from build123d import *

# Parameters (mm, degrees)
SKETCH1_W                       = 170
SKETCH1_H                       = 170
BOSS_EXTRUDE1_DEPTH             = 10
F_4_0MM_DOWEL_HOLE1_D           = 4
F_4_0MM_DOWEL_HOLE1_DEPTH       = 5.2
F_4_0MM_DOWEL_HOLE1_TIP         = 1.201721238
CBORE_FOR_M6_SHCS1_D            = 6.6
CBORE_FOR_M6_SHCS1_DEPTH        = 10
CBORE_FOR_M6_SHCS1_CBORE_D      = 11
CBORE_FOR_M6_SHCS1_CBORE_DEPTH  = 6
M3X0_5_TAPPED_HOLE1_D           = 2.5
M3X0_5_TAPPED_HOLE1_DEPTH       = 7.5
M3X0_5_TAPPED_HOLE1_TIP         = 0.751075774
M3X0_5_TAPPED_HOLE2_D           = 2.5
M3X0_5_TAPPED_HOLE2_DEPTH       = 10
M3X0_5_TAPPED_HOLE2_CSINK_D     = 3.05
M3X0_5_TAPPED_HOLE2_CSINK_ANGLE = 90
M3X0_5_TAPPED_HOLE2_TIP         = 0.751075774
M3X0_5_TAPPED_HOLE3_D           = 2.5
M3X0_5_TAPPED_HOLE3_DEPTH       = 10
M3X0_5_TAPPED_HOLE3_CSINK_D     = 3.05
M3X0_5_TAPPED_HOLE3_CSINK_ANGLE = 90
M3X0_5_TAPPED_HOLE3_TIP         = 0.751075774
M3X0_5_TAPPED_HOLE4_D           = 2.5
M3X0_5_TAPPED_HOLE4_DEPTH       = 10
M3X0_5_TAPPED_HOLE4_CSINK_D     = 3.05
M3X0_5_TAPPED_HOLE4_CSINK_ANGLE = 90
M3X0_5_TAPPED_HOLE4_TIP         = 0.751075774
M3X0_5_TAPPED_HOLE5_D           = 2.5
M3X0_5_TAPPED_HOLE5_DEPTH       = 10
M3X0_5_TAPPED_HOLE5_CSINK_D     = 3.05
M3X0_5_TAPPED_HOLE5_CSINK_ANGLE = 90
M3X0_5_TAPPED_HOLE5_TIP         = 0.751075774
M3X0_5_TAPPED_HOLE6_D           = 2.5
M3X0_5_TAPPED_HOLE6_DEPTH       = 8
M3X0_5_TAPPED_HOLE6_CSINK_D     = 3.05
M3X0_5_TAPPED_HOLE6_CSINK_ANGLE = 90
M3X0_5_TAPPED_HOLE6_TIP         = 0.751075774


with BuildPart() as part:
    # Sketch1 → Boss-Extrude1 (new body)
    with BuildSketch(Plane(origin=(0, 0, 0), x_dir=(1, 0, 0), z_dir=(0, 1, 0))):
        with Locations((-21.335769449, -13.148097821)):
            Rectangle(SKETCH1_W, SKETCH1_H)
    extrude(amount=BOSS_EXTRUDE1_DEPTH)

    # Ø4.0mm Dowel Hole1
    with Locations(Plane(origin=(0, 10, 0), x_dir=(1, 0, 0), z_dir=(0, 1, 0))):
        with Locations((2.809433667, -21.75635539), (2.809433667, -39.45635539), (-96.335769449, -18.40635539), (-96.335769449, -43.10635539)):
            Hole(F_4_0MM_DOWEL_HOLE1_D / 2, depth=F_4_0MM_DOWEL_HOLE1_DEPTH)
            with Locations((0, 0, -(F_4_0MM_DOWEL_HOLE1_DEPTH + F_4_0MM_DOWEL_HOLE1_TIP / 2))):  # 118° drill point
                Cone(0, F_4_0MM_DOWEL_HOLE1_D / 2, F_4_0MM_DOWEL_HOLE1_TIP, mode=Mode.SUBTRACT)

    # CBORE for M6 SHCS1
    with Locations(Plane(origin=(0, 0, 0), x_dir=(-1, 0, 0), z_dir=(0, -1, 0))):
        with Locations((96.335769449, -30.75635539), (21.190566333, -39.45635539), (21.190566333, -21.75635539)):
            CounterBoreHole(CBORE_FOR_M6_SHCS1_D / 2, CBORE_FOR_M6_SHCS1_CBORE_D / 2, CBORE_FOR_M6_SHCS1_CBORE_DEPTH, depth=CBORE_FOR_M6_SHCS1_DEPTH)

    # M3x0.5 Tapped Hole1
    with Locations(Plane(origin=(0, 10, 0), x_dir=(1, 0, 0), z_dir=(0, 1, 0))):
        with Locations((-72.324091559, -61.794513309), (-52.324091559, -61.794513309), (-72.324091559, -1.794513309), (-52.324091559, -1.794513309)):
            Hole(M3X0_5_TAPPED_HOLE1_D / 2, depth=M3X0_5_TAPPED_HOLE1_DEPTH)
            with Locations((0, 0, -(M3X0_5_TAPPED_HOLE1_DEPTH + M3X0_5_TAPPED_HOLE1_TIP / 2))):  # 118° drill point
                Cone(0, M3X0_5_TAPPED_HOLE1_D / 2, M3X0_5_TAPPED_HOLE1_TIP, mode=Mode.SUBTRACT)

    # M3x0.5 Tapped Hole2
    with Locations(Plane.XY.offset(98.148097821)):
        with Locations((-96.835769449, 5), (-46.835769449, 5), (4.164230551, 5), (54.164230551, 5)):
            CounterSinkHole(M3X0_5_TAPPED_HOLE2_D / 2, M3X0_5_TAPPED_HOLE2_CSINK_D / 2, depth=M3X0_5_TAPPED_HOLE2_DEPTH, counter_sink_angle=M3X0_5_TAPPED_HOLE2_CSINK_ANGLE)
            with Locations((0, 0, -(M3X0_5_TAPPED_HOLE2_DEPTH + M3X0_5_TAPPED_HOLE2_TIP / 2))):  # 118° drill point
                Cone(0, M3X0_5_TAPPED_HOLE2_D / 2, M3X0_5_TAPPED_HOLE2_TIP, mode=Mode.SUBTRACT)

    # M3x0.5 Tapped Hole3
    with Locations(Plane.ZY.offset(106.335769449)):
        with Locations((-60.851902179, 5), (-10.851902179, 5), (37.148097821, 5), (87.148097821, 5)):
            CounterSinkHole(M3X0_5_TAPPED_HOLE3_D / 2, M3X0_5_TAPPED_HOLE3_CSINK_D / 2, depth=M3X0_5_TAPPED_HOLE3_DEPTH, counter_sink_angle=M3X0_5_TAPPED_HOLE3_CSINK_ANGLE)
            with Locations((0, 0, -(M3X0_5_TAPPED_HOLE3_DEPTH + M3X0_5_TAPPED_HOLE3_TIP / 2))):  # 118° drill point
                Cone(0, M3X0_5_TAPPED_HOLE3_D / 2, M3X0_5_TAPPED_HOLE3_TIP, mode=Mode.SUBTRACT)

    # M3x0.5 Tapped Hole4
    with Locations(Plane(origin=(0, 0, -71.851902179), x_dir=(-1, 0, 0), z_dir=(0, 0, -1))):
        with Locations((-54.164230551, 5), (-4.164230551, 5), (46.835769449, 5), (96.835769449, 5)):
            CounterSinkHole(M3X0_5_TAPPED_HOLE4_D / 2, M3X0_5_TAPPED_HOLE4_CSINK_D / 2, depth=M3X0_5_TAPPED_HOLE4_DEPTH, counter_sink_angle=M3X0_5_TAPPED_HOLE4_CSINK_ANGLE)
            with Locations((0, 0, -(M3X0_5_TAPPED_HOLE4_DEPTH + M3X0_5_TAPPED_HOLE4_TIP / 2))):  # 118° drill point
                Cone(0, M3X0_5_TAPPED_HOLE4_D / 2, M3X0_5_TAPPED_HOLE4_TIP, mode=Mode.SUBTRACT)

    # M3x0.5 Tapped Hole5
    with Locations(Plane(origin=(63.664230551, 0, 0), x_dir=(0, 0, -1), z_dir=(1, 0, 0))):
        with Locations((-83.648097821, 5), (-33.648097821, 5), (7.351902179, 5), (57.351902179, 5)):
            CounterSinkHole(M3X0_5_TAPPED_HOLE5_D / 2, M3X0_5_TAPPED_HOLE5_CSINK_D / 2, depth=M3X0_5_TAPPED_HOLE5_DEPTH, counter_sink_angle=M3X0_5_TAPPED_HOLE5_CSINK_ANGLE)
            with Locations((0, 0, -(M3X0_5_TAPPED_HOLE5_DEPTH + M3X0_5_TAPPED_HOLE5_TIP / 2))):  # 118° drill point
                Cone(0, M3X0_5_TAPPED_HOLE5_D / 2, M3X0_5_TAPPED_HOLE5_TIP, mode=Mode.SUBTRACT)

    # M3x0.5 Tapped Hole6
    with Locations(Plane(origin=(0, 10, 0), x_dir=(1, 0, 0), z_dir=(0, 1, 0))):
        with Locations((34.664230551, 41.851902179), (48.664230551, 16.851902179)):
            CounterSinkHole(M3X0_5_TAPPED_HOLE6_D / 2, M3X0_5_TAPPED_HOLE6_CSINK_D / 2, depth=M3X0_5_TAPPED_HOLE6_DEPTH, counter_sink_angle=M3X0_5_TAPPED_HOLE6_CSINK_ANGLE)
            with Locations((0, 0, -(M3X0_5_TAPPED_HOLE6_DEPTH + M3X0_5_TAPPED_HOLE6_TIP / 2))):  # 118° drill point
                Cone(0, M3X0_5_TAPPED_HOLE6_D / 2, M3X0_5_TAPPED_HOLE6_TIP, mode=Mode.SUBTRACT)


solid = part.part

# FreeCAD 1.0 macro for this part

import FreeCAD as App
import Part
import Sketcher

V = App.Vector


def add_polygon(sketch, points):
    """Adds a closed chain of lines whose ends are joined by coincident constraints."""
    first, n = sketch.GeometryCount, len(points)
    for a, b in zip(points, points[1:] + points[:1]):
        sketch.addGeometry(Part.LineSegment(App.Vector(*a, 0), App.Vector(*b, 0)), False)
    for i in range(n):
        sketch.addConstraint(Sketcher.Constraint("Coincident", first + i, 2, first + (i + 1) % n, 1))

doc = App.newDocument("Part")
body = doc.addObject("PartDesign::Body", "Body")

# Sketch on XZ plane
sketch1 = body.newObject("Sketcher::SketchObject", "Sketch")
sketch1.AttachmentSupport = (doc.getObject("XZ_Plane"), [""])
sketch1.MapMode = "FlatFace"
add_polygon(sketch1, [(-106, -72), (-106, 98), (64, 98), (64, -72)])  # lines 0-3
sketch1.addConstraint(Sketcher.Constraint("Vertical", 0))
sketch1.addConstraint(Sketcher.Constraint("Horizontal", 1))
sketch1.addConstraint(Sketcher.Constraint("Vertical", 2))
sketch1.addConstraint(Sketcher.Constraint("Horizontal", 3))
sketch1.addConstraint(Sketcher.Constraint("Equal", 3, 0))
sketch1.addConstraint(Sketcher.Constraint("DistanceX", 1, 1, 1, 2, 170.0))
sketch1.addConstraint(Sketcher.Constraint("DistanceX", 0, 2, -1, 1, 106.335769))
sketch1.addConstraint(Sketcher.Constraint("DistanceY", -1, 1, 0, 2, 98.148098))
pad1 = body.newObject("PartDesign::Pad", "Pad")
pad1.Profile = sketch1
pad1.Length = 10
pad1.Reversed = True

# Sketch on XZ plane
sketch2 = body.newObject("Sketcher::SketchObject", "Sketch001")
sketch2.AttachmentSupport = (doc.getObject("XZ_Plane"), [""])
sketch2.MapMode = "FlatFace"
sketch2.AttachmentOffset = App.Placement(V(0, 0, -10), App.Rotation())
sketch2.addGeometry(Part.Circle(V(2.8, 21.8, 0), V(0, 0, 1), 2), False)
sketch2.addGeometry(Part.Circle(V(2.8, 39.5, 0), V(0, 0, 1), 2), False)
sketch2.addGeometry(Part.Circle(V(-96.3, 18.4, 0), V(0, 0, 1), 2), False)
sketch2.addGeometry(Part.Circle(V(-96.3, 43.1, 0), V(0, 0, 1), 2), False)
sketch2.addConstraint(Sketcher.Constraint("Equal", 0, 1))
sketch2.addConstraint(Sketcher.Constraint("Equal", 1, 2))
sketch2.addConstraint(Sketcher.Constraint("Equal", 2, 3))
sketch2.addConstraint(Sketcher.Constraint("Vertical", 0, 3, 1, 3))
sketch2.addConstraint(Sketcher.Constraint("Vertical", 2, 3, 3, 3))
sketch2.addConstraint(Sketcher.Constraint("Diameter", 0, 4.0))
sketch2.addConstraint(Sketcher.Constraint("DistanceY", 0, 3, 1, 3, 17.7))
sketch2.addConstraint(Sketcher.Constraint("DistanceY", 2, 3, 3, 3, 24.7))
sketch2.addConstraint(Sketcher.Constraint("DistanceY", 2, 3, 0, 3, 3.35))
sketch2.addConstraint(Sketcher.Constraint("DistanceX", 2, 3, -1, 1, 96.335769))
sketch2.addConstraint(Sketcher.Constraint("DistanceX", -1, 1, 0, 3, 2.809434))
sketch2.addConstraint(Sketcher.Constraint("DistanceY", -1, 1, 0, 3, 21.756355))
doc.recompute()
hole = body.newObject("PartDesign::Hole", "Hole")
hole.Profile = sketch2
hole.ThreadType = "None"
hole.Diameter = 4
hole.DepthType = "Dimension"
hole.Depth = 5.2
hole.DrillPoint = "Angled"
hole.DrillPointAngle = 118
hole.Reversed = True

# Sketch on XZ plane
sketch3 = body.newObject("Sketcher::SketchObject", "Sketch002")
sketch3.AttachmentSupport = (doc.getObject("XZ_Plane"), [""])
sketch3.MapMode = "FlatFace"
sketch3.addGeometry(Part.Circle(V(-96.3, 30.8, 0), V(0, 0, 1), 3.3), False)
sketch3.addGeometry(Part.Circle(V(-21.2, 39.5, 0), V(0, 0, 1), 3.3), False)
sketch3.addGeometry(Part.Circle(V(-21.2, 21.8, 0), V(0, 0, 1), 3.3), False)
sketch3.addConstraint(Sketcher.Constraint("Equal", 0, 1))
sketch3.addConstraint(Sketcher.Constraint("Equal", 1, 2))
sketch3.addConstraint(Sketcher.Constraint("Vertical", 1, 3, 2, 3))
sketch3.addConstraint(Sketcher.Constraint("Diameter", 0, 6.6))
sketch3.addConstraint(Sketcher.Constraint("DistanceY", 2, 3, 0, 3, 9.0))
sketch3.addConstraint(Sketcher.Constraint("DistanceY", 0, 3, 1, 3, 8.7))
sketch3.addConstraint(Sketcher.Constraint("DistanceX", 0, 3, -1, 1, 96.335769))
sketch3.addConstraint(Sketcher.Constraint("DistanceY", -1, 1, 0, 3, 30.756355))
sketch3.addConstraint(Sketcher.Constraint("DistanceX", 1, 3, -1, 1, 21.190566))
doc.recompute()
hole2 = body.newObject("PartDesign::Hole", "Hole001")
hole2.Profile = sketch3
hole2.ThreadType = "None"
hole2.Diameter = 6.6
hole2.DepthType = "Dimension"
hole2.Depth = 10
hole2.DrillPoint = "Flat"
hole2.HoleCutType = "Counterbore"
hole2.HoleCutDiameter = 11
hole2.HoleCutDepth = 6

# Sketch on XZ plane
sketch4 = body.newObject("Sketcher::SketchObject", "Sketch003")
sketch4.AttachmentSupport = (doc.getObject("XZ_Plane"), [""])
sketch4.MapMode = "FlatFace"
sketch4.AttachmentOffset = App.Placement(V(0, 0, -10), App.Rotation())
sketch4.addGeometry(Part.Circle(V(-72.3, 61.8, 0), V(0, 0, 1), 1.2), False)
sketch4.addGeometry(Part.Circle(V(-52.3, 61.8, 0), V(0, 0, 1), 1.2), False)
sketch4.addGeometry(Part.Circle(V(-72.3, 1.8, 0), V(0, 0, 1), 1.2), False)
sketch4.addGeometry(Part.Circle(V(-52.3, 1.8, 0), V(0, 0, 1), 1.2), False)
sketch4.addConstraint(Sketcher.Constraint("Equal", 0, 1))
sketch4.addConstraint(Sketcher.Constraint("Equal", 1, 2))
sketch4.addConstraint(Sketcher.Constraint("Equal", 2, 3))
sketch4.addConstraint(Sketcher.Constraint("Horizontal", 0, 3, 1, 3))
sketch4.addConstraint(Sketcher.Constraint("Horizontal", 2, 3, 3, 3))
sketch4.addConstraint(Sketcher.Constraint("Vertical", 0, 3, 2, 3))
sketch4.addConstraint(Sketcher.Constraint("Vertical", 1, 3, 3, 3))
sketch4.addConstraint(Sketcher.Constraint("Diameter", 0, 2.5))
sketch4.addConstraint(Sketcher.Constraint("DistanceX", 0, 3, 1, 3, 20.0))
sketch4.addConstraint(Sketcher.Constraint("DistanceY", 2, 3, 0, 3, 60.0))
sketch4.addConstraint(Sketcher.Constraint("DistanceX", 0, 3, -1, 1, 72.324092))
sketch4.addConstraint(Sketcher.Constraint("DistanceY", -1, 1, 0, 3, 61.794513))
doc.recompute()
hole3 = body.newObject("PartDesign::Hole", "Hole002")
hole3.Profile = sketch4
hole3.ThreadType = "None"
hole3.Diameter = 2.5
hole3.DepthType = "Dimension"
hole3.Depth = 7.5
hole3.DrillPoint = "Angled"
hole3.DrillPointAngle = 118
hole3.Reversed = True

# Sketch on XY plane
sketch5 = body.newObject("Sketcher::SketchObject", "Sketch004")
sketch5.AttachmentSupport = (doc.getObject("XY_Plane"), [""])
sketch5.MapMode = "FlatFace"
sketch5.AttachmentOffset = App.Placement(V(0, 0, 98.148098), App.Rotation())
sketch5.addGeometry(Part.Circle(V(-96.8, 5, 0), V(0, 0, 1), 1.2), False)
sketch5.addGeometry(Part.Circle(V(-46.8, 5, 0), V(0, 0, 1), 1.2), False)
sketch5.addGeometry(Part.Circle(V(4.2, 5, 0), V(0, 0, 1), 1.2), False)
sketch5.addGeometry(Part.Circle(V(54.2, 5, 0), V(0, 0, 1), 1.2), False)
sketch5.addConstraint(Sketcher.Constraint("Equal", 0, 1))
sketch5.addConstraint(Sketcher.Constraint("Equal", 1, 2))
sketch5.addConstraint(Sketcher.Constraint("Equal", 2, 3))
sketch5.addConstraint(Sketcher.Constraint("Horizontal", 0, 3, 1, 3))
sketch5.addConstraint(Sketcher.Constraint("Horizontal", 1, 3, 2, 3))
sketch5.addConstraint(Sketcher.Constraint("Horizontal", 2, 3, 3, 3))
sketch5.addConstraint(Sketcher.Constraint("Diameter", 0, 2.5))
sketch5.addConstraint(Sketcher.Constraint("DistanceY", -1, 1, 0, 3, 5.0))
sketch5.addConstraint(Sketcher.Constraint("DistanceX", 0, 3, 1, 3, 50.0))
sketch5.addConstraint(Sketcher.Constraint("DistanceX", 1, 3, 2, 3, 51.0))
sketch5.addConstraint(Sketcher.Constraint("DistanceX", 2, 3, 3, 3, 50.0))
sketch5.addConstraint(Sketcher.Constraint("DistanceX", 0, 3, -1, 1, 96.835769))
doc.recompute()
hole4 = body.newObject("PartDesign::Hole", "Hole003")
hole4.Profile = sketch5
hole4.ThreadType = "None"
hole4.Diameter = 2.5
hole4.DepthType = "Dimension"
hole4.Depth = 10
hole4.DrillPoint = "Angled"
hole4.DrillPointAngle = 118
hole4.HoleCutType = "Countersink"
hole4.HoleCutDiameter = 3.05
hole4.HoleCutCountersinkAngle = 90

# Sketch on YZ plane
sketch6 = body.newObject("Sketcher::SketchObject", "Sketch005")
sketch6.AttachmentSupport = (doc.getObject("YZ_Plane"), [""])
sketch6.MapMode = "FlatFace"
sketch6.AttachmentOffset = App.Placement(V(0, 0, -106.335769), App.Rotation())
sketch6.addGeometry(Part.Circle(V(5, -60.9, 0), V(0, 0, 1), 1.2), False)
sketch6.addGeometry(Part.Circle(V(5, -10.9, 0), V(0, 0, 1), 1.2), False)
sketch6.addGeometry(Part.Circle(V(5, 37.1, 0), V(0, 0, 1), 1.2), False)
sketch6.addGeometry(Part.Circle(V(5, 87.1, 0), V(0, 0, 1), 1.2), False)
sketch6.addConstraint(Sketcher.Constraint("Equal", 0, 1))
sketch6.addConstraint(Sketcher.Constraint("Equal", 1, 2))
sketch6.addConstraint(Sketcher.Constraint("Equal", 2, 3))
sketch6.addConstraint(Sketcher.Constraint("Vertical", 0, 3, 1, 3))
sketch6.addConstraint(Sketcher.Constraint("Vertical", 1, 3, 2, 3))
sketch6.addConstraint(Sketcher.Constraint("Vertical", 2, 3, 3, 3))
sketch6.addConstraint(Sketcher.Constraint("Diameter", 0, 2.5))
sketch6.addConstraint(Sketcher.Constraint("DistanceX", -1, 1, 0, 3, 5.0))
sketch6.addConstraint(Sketcher.Constraint("DistanceY", 0, 3, 1, 3, 50.0))
sketch6.addConstraint(Sketcher.Constraint("DistanceY", 1, 3, 2, 3, 48.0))
sketch6.addConstraint(Sketcher.Constraint("DistanceY", 2, 3, 3, 3, 50.0))
sketch6.addConstraint(Sketcher.Constraint("DistanceY", 0, 3, -1, 1, 60.851902))
doc.recompute()
hole5 = body.newObject("PartDesign::Hole", "Hole004")
hole5.Profile = sketch6
hole5.ThreadType = "None"
hole5.Diameter = 2.5
hole5.DepthType = "Dimension"
hole5.Depth = 10
hole5.DrillPoint = "Angled"
hole5.DrillPointAngle = 118
hole5.HoleCutType = "Countersink"
hole5.HoleCutDiameter = 3.05
hole5.HoleCutCountersinkAngle = 90
hole5.Reversed = True

# Sketch on XY plane
sketch7 = body.newObject("Sketcher::SketchObject", "Sketch006")
sketch7.AttachmentSupport = (doc.getObject("XY_Plane"), [""])
sketch7.MapMode = "FlatFace"
sketch7.AttachmentOffset = App.Placement(V(0, 0, -71.851902), App.Rotation())
sketch7.addGeometry(Part.Circle(V(54.2, 5, 0), V(0, 0, 1), 1.2), False)
sketch7.addGeometry(Part.Circle(V(4.2, 5, 0), V(0, 0, 1), 1.2), False)
sketch7.addGeometry(Part.Circle(V(-46.8, 5, 0), V(0, 0, 1), 1.2), False)
sketch7.addGeometry(Part.Circle(V(-96.8, 5, 0), V(0, 0, 1), 1.2), False)
sketch7.addConstraint(Sketcher.Constraint("Equal", 0, 1))
sketch7.addConstraint(Sketcher.Constraint("Equal", 1, 2))
sketch7.addConstraint(Sketcher.Constraint("Equal", 2, 3))
sketch7.addConstraint(Sketcher.Constraint("Horizontal", 0, 3, 1, 3))
sketch7.addConstraint(Sketcher.Constraint("Horizontal", 1, 3, 2, 3))
sketch7.addConstraint(Sketcher.Constraint("Horizontal", 2, 3, 3, 3))
sketch7.addConstraint(Sketcher.Constraint("Diameter", 0, 2.5))
sketch7.addConstraint(Sketcher.Constraint("DistanceY", -1, 1, 0, 3, 5.0))
sketch7.addConstraint(Sketcher.Constraint("DistanceX", 1, 3, 0, 3, 50.0))
sketch7.addConstraint(Sketcher.Constraint("DistanceX", 2, 3, 1, 3, 51.0))
sketch7.addConstraint(Sketcher.Constraint("DistanceX", 3, 3, 2, 3, 50.0))
sketch7.addConstraint(Sketcher.Constraint("DistanceX", -1, 1, 0, 3, 54.164231))
doc.recompute()
hole6 = body.newObject("PartDesign::Hole", "Hole005")
hole6.Profile = sketch7
hole6.ThreadType = "None"
hole6.Diameter = 2.5
hole6.DepthType = "Dimension"
hole6.Depth = 10
hole6.DrillPoint = "Angled"
hole6.DrillPointAngle = 118
hole6.HoleCutType = "Countersink"
hole6.HoleCutDiameter = 3.05
hole6.HoleCutCountersinkAngle = 90
hole6.Reversed = True

# Sketch on YZ plane
sketch8 = body.newObject("Sketcher::SketchObject", "Sketch007")
sketch8.AttachmentSupport = (doc.getObject("YZ_Plane"), [""])
sketch8.MapMode = "FlatFace"
sketch8.AttachmentOffset = App.Placement(V(0, 0, 63.664231), App.Rotation())
sketch8.addGeometry(Part.Circle(V(5, 83.6, 0), V(0, 0, 1), 1.2), False)
sketch8.addGeometry(Part.Circle(V(5, 33.6, 0), V(0, 0, 1), 1.2), False)
sketch8.addGeometry(Part.Circle(V(5, -7.4, 0), V(0, 0, 1), 1.2), False)
sketch8.addGeometry(Part.Circle(V(5, -57.4, 0), V(0, 0, 1), 1.2), False)
sketch8.addConstraint(Sketcher.Constraint("Equal", 0, 1))
sketch8.addConstraint(Sketcher.Constraint("Equal", 1, 2))
sketch8.addConstraint(Sketcher.Constraint("Equal", 2, 3))
sketch8.addConstraint(Sketcher.Constraint("Vertical", 0, 3, 1, 3))
sketch8.addConstraint(Sketcher.Constraint("Vertical", 1, 3, 2, 3))
sketch8.addConstraint(Sketcher.Constraint("Vertical", 2, 3, 3, 3))
sketch8.addConstraint(Sketcher.Constraint("Diameter", 0, 2.5))
sketch8.addConstraint(Sketcher.Constraint("DistanceX", -1, 1, 0, 3, 5.0))
sketch8.addConstraint(Sketcher.Constraint("DistanceY", 1, 3, 0, 3, 50.0))
sketch8.addConstraint(Sketcher.Constraint("DistanceY", 2, 3, 1, 3, 41.0))
sketch8.addConstraint(Sketcher.Constraint("DistanceY", 3, 3, 2, 3, 50.0))
sketch8.addConstraint(Sketcher.Constraint("DistanceY", -1, 1, 0, 3, 83.648098))
doc.recompute()
hole7 = body.newObject("PartDesign::Hole", "Hole006")
hole7.Profile = sketch8
hole7.ThreadType = "None"
hole7.Diameter = 2.5
hole7.DepthType = "Dimension"
hole7.Depth = 10
hole7.DrillPoint = "Angled"
hole7.DrillPointAngle = 118
hole7.HoleCutType = "Countersink"
hole7.HoleCutDiameter = 3.05
hole7.HoleCutCountersinkAngle = 90

# Sketch on XZ plane
sketch9 = body.newObject("Sketcher::SketchObject", "Sketch008")
sketch9.AttachmentSupport = (doc.getObject("XZ_Plane"), [""])
sketch9.MapMode = "FlatFace"
sketch9.AttachmentOffset = App.Placement(V(0, 0, -10), App.Rotation())
sketch9.addGeometry(Part.Circle(V(34.7, -41.9, 0), V(0, 0, 1), 1.2), False)
sketch9.addGeometry(Part.Circle(V(48.7, -16.9, 0), V(0, 0, 1), 1.2), False)
sketch9.addConstraint(Sketcher.Constraint("Equal", 0, 1))
sketch9.addConstraint(Sketcher.Constraint("Diameter", 0, 2.5))
sketch9.addConstraint(Sketcher.Constraint("DistanceX", 0, 3, 1, 3, 14.0))
sketch9.addConstraint(Sketcher.Constraint("DistanceY", 0, 3, 1, 3, 25.0))
sketch9.addConstraint(Sketcher.Constraint("DistanceX", -1, 1, 0, 3, 34.664231))
sketch9.addConstraint(Sketcher.Constraint("DistanceY", 0, 3, -1, 1, 41.851902))
doc.recompute()
hole8 = body.newObject("PartDesign::Hole", "Hole007")
hole8.Profile = sketch9
hole8.ThreadType = "None"
hole8.Diameter = 2.5
hole8.DepthType = "Dimension"
hole8.Depth = 8
hole8.DrillPoint = "Angled"
hole8.DrillPointAngle = 118
hole8.HoleCutType = "Countersink"
hole8.HoleCutDiameter = 3.05
hole8.HoleCutCountersinkAngle = 90
hole8.Reversed = True

doc.recompute()
